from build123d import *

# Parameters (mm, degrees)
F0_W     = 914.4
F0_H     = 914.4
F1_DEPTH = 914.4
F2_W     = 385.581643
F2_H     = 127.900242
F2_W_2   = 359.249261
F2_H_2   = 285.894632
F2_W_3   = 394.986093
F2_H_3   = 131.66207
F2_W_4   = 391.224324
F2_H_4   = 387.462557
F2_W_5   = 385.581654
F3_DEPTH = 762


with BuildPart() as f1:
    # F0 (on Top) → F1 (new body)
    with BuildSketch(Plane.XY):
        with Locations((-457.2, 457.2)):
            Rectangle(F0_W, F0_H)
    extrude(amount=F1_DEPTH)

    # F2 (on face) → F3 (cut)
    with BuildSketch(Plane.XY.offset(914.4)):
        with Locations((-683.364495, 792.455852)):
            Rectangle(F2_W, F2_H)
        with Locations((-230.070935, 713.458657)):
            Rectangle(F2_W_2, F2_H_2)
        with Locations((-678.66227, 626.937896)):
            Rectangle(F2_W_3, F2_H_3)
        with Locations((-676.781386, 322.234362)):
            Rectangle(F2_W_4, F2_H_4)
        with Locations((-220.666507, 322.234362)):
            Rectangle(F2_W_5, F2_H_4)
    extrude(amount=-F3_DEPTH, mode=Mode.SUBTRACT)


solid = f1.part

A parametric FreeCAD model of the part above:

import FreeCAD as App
import Part
import Sketcher
from FreeCAD import Vector
Q = App.Units.Quantity

doc = App.newDocument("Part")
body = doc.addObject("PartDesign::Body", "Body")

# Sketch on XY plane
sketch1 = body.newObject("Sketcher::SketchObject", "Sketch")
sketch1.AttachmentSupport = (doc.getObject("XY_Plane"), [""])
sketch1.MapMode = "FlatFace"
sketch1.addGeometry(Part.LineSegment(Vector(-914, 914, 0), Vector(-914, 0, 0)), False)
sketch1.addGeometry(Part.LineSegment(Vector(-914, 0, 0), Vector(0, 0, 0)), False)
sketch1.addGeometry(Part.LineSegment(Vector(0, 0, 0), Vector(0, 914, 0)), False)
sketch1.addGeometry(Part.LineSegment(Vector(0, 914, 0), Vector(-914, 914, 0)), False)
sketch1.addConstraint(Sketcher.Constraint("Coincident", 0, 2, 1, 1))
sketch1.addConstraint(Sketcher.Constraint("Coincident", 1, 2, 2, 1))
sketch1.addConstraint(Sketcher.Constraint("Coincident", 2, 2, 3, 1))
sketch1.addConstraint(Sketcher.Constraint("Coincident", 3, 2, 0, 1))
sketch1.addConstraint(Sketcher.Constraint("Vertical", 0))
sketch1.addConstraint(Sketcher.Constraint("Horizontal", 1))
sketch1.addConstraint(Sketcher.Constraint("Vertical", 2))
sketch1.addConstraint(Sketcher.Constraint("Horizontal", 3))
sketch1.addConstraint(Sketcher.Constraint("Coincident", 1, 2, -1, 1))
sketch1.addConstraint(Sketcher.Constraint("Equal", 3, 0))
sketch1.addConstraint(Sketcher.Constraint("DistanceX", 1, 1, 1, 2, Q("36 in")))
pad1 = body.newObject("PartDesign::Pad", "Pad")
pad1.Profile = sketch1
pad1.Length = Q("36 in")

# Sketch on XY plane
sketch2 = body.newObject("Sketcher::SketchObject", "Sketch001")
sketch2.AttachmentSupport = (doc.getObject("XY_Plane"), [""])
sketch2.MapMode = "FlatFace"
sketch2.AttachmentOffset = App.Placement(Vector(0, 0, 36 * 25.4), App.Rotation())
sketch2.addGeometry(Part.LineSegment(Vector(-876, 856, 0), Vector(-876, 729, 0)), False)
sketch2.addGeometry(Part.LineSegment(Vector(-876, 729, 0), Vector(-491, 729, 0)), False)
sketch2.addGeometry(Part.LineSegment(Vector(-491, 729, 0), Vector(-491, 856, 0)), False)
sketch2.addGeometry(Part.LineSegment(Vector(-491, 856, 0), Vector(-876, 856, 0)), False)
sketch2.addGeometry(Part.LineSegment(Vector(-410, 856, 0), Vector(-410, 571, 0)), False)
sketch2.addGeometry(Part.LineSegment(Vector(-410, 571, 0), Vector(-50, 571, 0)), False)
sketch2.addGeometry(Part.LineSegment(Vector(-50, 571, 0), Vector(-50, 856, 0)), False)
sketch2.addGeometry(Part.LineSegment(Vector(-50, 856, 0), Vector(-410, 856, 0)), False)
sketch2.addGeometry(Part.LineSegment(Vector(-876, 693, 0), Vector(-876, 561, 0)), False)
sketch2.addGeometry(Part.LineSegment(Vector(-876, 561, 0), Vector(-481, 561, 0)), False)
sketch2.addGeometry(Part.LineSegment(Vector(-481, 561, 0), Vector(-481, 693, 0)), False)
sketch2.addGeometry(Part.LineSegment(Vector(-481, 693, 0), Vector(-876, 693, 0)), False)
sketch2.addGeometry(Part.LineSegment(Vector(-872, 516, 0), Vector(-872, 129, 0)), False)
sketch2.addGeometry(Part.LineSegment(Vector(-872, 129, 0), Vector(-481, 129, 0)), False)
sketch2.addGeometry(Part.LineSegment(Vector(-481, 129, 0), Vector(-481, 516, 0)), False)
sketch2.addGeometry(Part.LineSegment(Vector(-481, 516, 0), Vector(-872, 516, 0)), False)
sketch2.addGeometry(Part.LineSegment(Vector(-413, 516, 0), Vector(-413, 129, 0)), False)
sketch2.addGeometry(Part.LineSegment(Vector(-413, 129, 0), Vector(-28, 129, 0)), False)
sketch2.addGeometry(Part.LineSegment(Vector(-28, 129, 0), Vector(-28, 516, 0)), False)
sketch2.addGeometry(Part.LineSegment(Vector(-28, 516, 0), Vector(-413, 516, 0)), False)
sketch2.addConstraint(Sketcher.Constraint("Coincident", 0, 2, 1, 1))
sketch2.addConstraint(Sketcher.Constraint("Coincident", 1, 2, 2, 1))
sketch2.addConstraint(Sketcher.Constraint("Coincident", 2, 2, 3, 1))
sketch2.addConstraint(Sketcher.Constraint("Coincident", 3, 2, 0, 1))
sketch2.addConstraint(Sketcher.Constraint("Coincident", 4, 2, 5, 1))
sketch2.addConstraint(Sketcher.Constraint("Coincident", 5, 2, 6, 1))
sketch2.addConstraint(Sketcher.Constraint("Coincident", 6, 2, 7, 1))
sketch2.addConstraint(Sketcher.Constraint("Coincident", 7, 2, 4, 1))
sketch2.addConstraint(Sketcher.Constraint("Coincident", 8, 2, 9, 1))
sketch2.addConstraint(Sketcher.Constraint("Coincident", 9, 2, 10, 1))
sketch2.addConstraint(Sketcher.Constraint("Coincident", 10, 2, 11, 1))
sketch2.addConstraint(Sketcher.Constraint("Coincident", 11, 2, 8, 1))
sketch2.addConstraint(Sketcher.Constraint("Coincident", 12, 2, 13, 1))
sketch2.addConstraint(Sketcher.Constraint("Coincident", 13, 2, 14, 1))
sketch2.addConstraint(Sketcher.Constraint("Coincident", 14, 2, 15, 1))
sketch2.addConstraint(Sketcher.Constraint("Coincident", 15, 2, 12, 1))
sketch2.addConstraint(Sketcher.Constraint("Coincident", 16, 2, 17, 1))
sketch2.addConstraint(Sketcher.Constraint("Coincident", 17, 2, 18, 1))
sketch2.addConstraint(Sketcher.Constraint("Coincident", 18, 2, 19, 1))
sketch2.addConstraint(Sketcher.Constraint("Coincident", 19, 2, 16, 1))
sketch2.addConstraint(Sketcher.Constraint("Vertical", 0))
sketch2.addConstraint(Sketcher.Constraint("Horizontal", 1))
sketch2.addConstraint(Sketcher.Constraint("Vertical", 2))
sketch2.addConstraint(Sketcher.Constraint("Horizontal", 3))
sketch2.addConstraint(Sketcher.Constraint("Vertical", 4))
sketch2.addConstraint(Sketcher.Constraint("Horizontal", 5))
sketch2.addConstraint(Sketcher.Constraint("Vertical", 6))
sketch2.addConstraint(Sketcher.Constraint("Horizontal", 7))
sketch2.addConstraint(Sketcher.Constraint("Vertical", 8))
sketch2.addConstraint(Sketcher.Constraint("Horizontal", 9))
sketch2.addConstraint(Sketcher.Constraint("Vertical", 10))
sketch2.addConstraint(Sketcher.Constraint("Horizontal", 11))
sketch2.addConstraint(Sketcher.Constraint("Vertical", 12))
sketch2.addConstraint(Sketcher.Constraint("Horizontal", 13))
sketch2.addConstraint(Sketcher.Constraint("Vertical", 14))
sketch2.addConstraint(Sketcher.Constraint("Horizontal", 15))
sketch2.addConstraint(Sketcher.Constraint("Vertical", 16))
sketch2.addConstraint(Sketcher.Constraint("Horizontal", 17))
sketch2.addConstraint(Sketcher.Constraint("Vertical", 18))
sketch2.addConstraint(Sketcher.Constraint("Horizontal", 19))
sketch2.addConstraint(Sketcher.Constraint("Horizontal", 3, 2, 6, 2))
sketch2.addConstraint(Sketcher.Constraint("Horizontal", 13, 2, 16, 2))
sketch2.addConstraint(Sketcher.Constraint("Horizontal", 15, 2, 18, 2))
sketch2.addConstraint(Sketcher.Constraint("Vertical", 3, 2, 8, 2))
sketch2.addConstraint(Sketcher.Constraint("Vertical", 10, 2, 13, 2))
sketch2.addConstraint(Sketcher.Constraint("DistanceY", 12, 2, 4, 2, Q("17.4018999 in")))
sketch2.addConstraint(Sketcher.Constraint("DistanceX", 5, 1, 5, 2, Q("359.249261 mm")))
sketch2.addConstraint(Sketcher.Constraint("DistanceY", 4, 2, 4, 1, Q("285.894632 mm")))
sketch2.addConstraint(Sketcher.Constraint("DistanceY", 8, 2, 8, 1, Q("131.66207 mm")))
sketch2.addConstraint(Sketcher.Constraint("DistanceY", 10, 2, 1, 2, Q("35.7368 mm")))
sketch2.addConstraint(Sketcher.Constraint("DistanceY", 14, 2, 4, 2, Q("54.545701 mm")))
sketch2.addConstraint(Sketcher.Constraint("DistanceX", 1, 1, 1, 2, Q("385.581643 mm")))
sketch2.addConstraint(Sketcher.Constraint("DistanceX", 9, 1, 9, 2, Q("394.986093 mm")))
sketch2.addConstraint(Sketcher.Constraint("DistanceX", 13, 1, 13, 2, Q("391.224324 mm")))
sketch2.addConstraint(Sketcher.Constraint("DistanceX", 17, 1, 17, 2, Q("385.581654 mm")))
sketch2.addConstraint(Sketcher.Constraint("DistanceY", 0, 2, 0, 1, Q("127.900242 mm")))
sketch2.addConstraint(Sketcher.Constraint("DistanceY", -1, 1, 0, 2, Q("728.505731 mm")))
sketch2.addConstraint(Sketcher.Constraint("DistanceX", 12, 2, -1, 1, Q("872.393548 mm")))
sketch2.addConstraint(Sketcher.Constraint("DistanceX", 17, 2, -1, 1, Q("27.87568 mm")))
sketch2.addConstraint(Sketcher.Constraint("DistanceX", 0, 2, 4, 2, Q("466.459751 mm")))
pocket1 = body.newObject("PartDesign::Pocket", "Pocket")
pocket1.Profile = sketch2
pocket1.Length = Q("30 in")

doc.recompute()
